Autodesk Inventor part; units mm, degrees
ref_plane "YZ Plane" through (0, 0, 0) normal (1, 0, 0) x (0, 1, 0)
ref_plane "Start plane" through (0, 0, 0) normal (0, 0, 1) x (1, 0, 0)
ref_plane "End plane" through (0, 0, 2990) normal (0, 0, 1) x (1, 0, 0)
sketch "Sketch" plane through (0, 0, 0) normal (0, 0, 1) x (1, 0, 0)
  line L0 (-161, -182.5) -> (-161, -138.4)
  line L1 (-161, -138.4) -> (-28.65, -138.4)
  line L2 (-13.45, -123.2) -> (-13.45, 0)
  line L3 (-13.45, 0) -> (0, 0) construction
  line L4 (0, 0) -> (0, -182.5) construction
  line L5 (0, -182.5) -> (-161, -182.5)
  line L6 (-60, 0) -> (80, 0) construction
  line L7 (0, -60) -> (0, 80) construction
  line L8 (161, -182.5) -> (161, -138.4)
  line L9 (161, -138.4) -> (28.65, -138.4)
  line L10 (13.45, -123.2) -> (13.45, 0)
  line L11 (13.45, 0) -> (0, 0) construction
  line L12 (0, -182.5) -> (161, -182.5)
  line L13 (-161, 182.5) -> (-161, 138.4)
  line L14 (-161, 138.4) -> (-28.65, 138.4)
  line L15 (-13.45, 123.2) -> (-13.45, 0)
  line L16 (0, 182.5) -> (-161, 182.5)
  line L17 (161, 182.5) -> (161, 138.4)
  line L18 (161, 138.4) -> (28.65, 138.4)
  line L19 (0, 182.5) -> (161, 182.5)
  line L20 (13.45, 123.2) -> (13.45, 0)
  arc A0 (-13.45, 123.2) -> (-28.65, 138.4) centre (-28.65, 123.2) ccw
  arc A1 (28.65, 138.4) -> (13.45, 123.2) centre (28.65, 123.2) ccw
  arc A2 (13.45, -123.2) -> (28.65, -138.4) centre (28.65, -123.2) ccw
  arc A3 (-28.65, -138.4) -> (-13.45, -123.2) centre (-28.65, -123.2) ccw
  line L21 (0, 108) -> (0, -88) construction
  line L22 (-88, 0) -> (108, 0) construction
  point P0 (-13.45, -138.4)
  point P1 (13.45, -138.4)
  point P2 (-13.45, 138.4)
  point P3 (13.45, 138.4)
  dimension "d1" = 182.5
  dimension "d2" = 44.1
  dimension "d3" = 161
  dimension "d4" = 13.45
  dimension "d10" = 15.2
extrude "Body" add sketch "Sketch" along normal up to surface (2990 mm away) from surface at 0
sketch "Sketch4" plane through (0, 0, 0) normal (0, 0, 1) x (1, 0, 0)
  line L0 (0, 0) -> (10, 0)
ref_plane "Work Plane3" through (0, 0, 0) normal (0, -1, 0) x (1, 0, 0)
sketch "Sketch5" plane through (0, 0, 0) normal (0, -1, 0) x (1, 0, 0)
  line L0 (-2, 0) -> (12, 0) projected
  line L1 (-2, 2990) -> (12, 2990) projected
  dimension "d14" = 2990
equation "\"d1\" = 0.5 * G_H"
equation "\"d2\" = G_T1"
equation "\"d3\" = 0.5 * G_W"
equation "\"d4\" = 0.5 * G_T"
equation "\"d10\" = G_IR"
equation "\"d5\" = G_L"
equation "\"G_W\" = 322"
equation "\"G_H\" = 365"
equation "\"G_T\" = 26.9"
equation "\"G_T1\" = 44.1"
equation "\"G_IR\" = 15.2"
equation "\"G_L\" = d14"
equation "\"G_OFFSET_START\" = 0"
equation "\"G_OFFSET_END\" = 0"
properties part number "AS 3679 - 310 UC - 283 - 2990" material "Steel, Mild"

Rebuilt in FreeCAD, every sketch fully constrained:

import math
import FreeCAD as App
import Part
import Sketcher

doc = App.newDocument("Part")
body = doc.addObject("PartDesign::Body", "Body")

sketch1 = doc.addObject("Sketcher::SketchObject", "Sketch")
body.addObject(sketch1)
sketch1.AttachmentSupport = (doc.XY_Plane, [""])
sketch1.MapMode = "FlatFace"
sketch1.addGeometry([
    Part.LineSegment(App.Vector(-161, -138.4, 0), App.Vector(-161, -182.5, 0)),
    Part.LineSegment(App.Vector(-161, -182.5, 0), App.Vector(161, -182.5, 0)),
    Part.LineSegment(App.Vector(161, -182.5, 0), App.Vector(161, -138.4, 0)),
    Part.LineSegment(App.Vector(161, -138.4, 0), App.Vector(28.65, -138.4, 0)),
    Part.ArcOfCircle(Part.Circle(App.Vector(28.65, -123.2, 0), App.Vector(0, 0, 1), 15.2), math.radians(180), math.radians(270)),
    Part.LineSegment(App.Vector(13.45, -123.2, 0), App.Vector(13.45, 123.2, 0)),
    Part.ArcOfCircle(Part.Circle(App.Vector(28.65, 123.2, 0), App.Vector(0, 0, 1), 15.2), math.radians(90), math.radians(180)),
    Part.LineSegment(App.Vector(28.65, 138.4, 0), App.Vector(161, 138.4, 0)),
    Part.LineSegment(App.Vector(161, 138.4, 0), App.Vector(161, 182.5, 0)),
    Part.LineSegment(App.Vector(161, 182.5, 0), App.Vector(-161, 182.5, 0)),
    Part.LineSegment(App.Vector(-161, 182.5, 0), App.Vector(-161, 138.4, 0)),
    Part.LineSegment(App.Vector(-161, 138.4, 0), App.Vector(-28.65, 138.4, 0)),
    Part.ArcOfCircle(Part.Circle(App.Vector(-28.65, 123.2, 0), App.Vector(0, 0, 1), 15.2), math.radians(0), math.radians(90)),
    Part.LineSegment(App.Vector(-13.45, 123.2, 0), App.Vector(-13.45, -123.2, 0)),
    Part.ArcOfCircle(Part.Circle(App.Vector(-28.65, -123.2, 0), App.Vector(0, 0, 1), 15.2), math.radians(-90), math.radians(0)),
    Part.LineSegment(App.Vector(-28.65, -138.4, 0), App.Vector(-161, -138.4, 0)),
], False)
sketch1.addConstraint([
    Sketcher.Constraint("Coincident", 0, 2, 1, 1),
    Sketcher.Constraint("Coincident", 1, 2, 2, 1),
    Sketcher.Constraint("Coincident", 2, 2, 3, 1),
    Sketcher.Constraint("Tangent", 3, 2, 4, 2),
    Sketcher.Constraint("Tangent", 4, 1, 5, 1),
    Sketcher.Constraint("Tangent", 5, 2, 6, 2),
    Sketcher.Constraint("Tangent", 6, 1, 7, 1),
    Sketcher.Constraint("Coincident", 7, 2, 8, 1),
    Sketcher.Constraint("Coincident", 8, 2, 9, 1),
    Sketcher.Constraint("Coincident", 9, 2, 10, 1),
    Sketcher.Constraint("Coincident", 10, 2, 11, 1),
    Sketcher.Constraint("Tangent", 11, 2, 12, 2),
    Sketcher.Constraint("Tangent", 12, 1, 13, 1),
    Sketcher.Constraint("Tangent", 13, 2, 14, 2),
    Sketcher.Constraint("Tangent", 14, 1, 15, 1),
    Sketcher.Constraint("Coincident", 15, 2, 0, 1),
    Sketcher.Constraint("Vertical", 0),
    Sketcher.Constraint("Horizontal", 1),
    Sketcher.Constraint("Vertical", 2),
    Sketcher.Constraint("Horizontal", 3),
    Sketcher.Constraint("Vertical", 5),
    Sketcher.Constraint("Horizontal", 7),
    Sketcher.Constraint("Vertical", 8),
    Sketcher.Constraint("Horizontal", 9),
    Sketcher.Constraint("Vertical", 10),
    Sketcher.Constraint("Horizontal", 11),
    Sketcher.Constraint("Vertical", 13),
    Sketcher.Constraint("Horizontal", 15),
    Sketcher.Constraint("Equal", 4, 6),
    Sketcher.Constraint("Equal", 6, 12),
    Sketcher.Constraint("Equal", 12, 14),
    Sketcher.Constraint("Symmetric", 4, 3, 12, 3, -1, 1),
    Sketcher.Constraint("Symmetric", 0, 2, 8, 2, -1, 1),
    Sketcher.Constraint("Symmetric", 7, 2, 10, 2, -2),
    Sketcher.Constraint("Symmetric", 2, 2, 15, 2, -2),
    Sketcher.Constraint("Radius", 4, 15.2),
    Sketcher.Constraint("DistanceY", 0, 2, 0, 1, 44.1),
    Sketcher.Constraint("DistanceX", 0, 2, -1, 1, 161.0),
    Sketcher.Constraint("DistanceY", 0, 2, -1, 1, 182.5),
    Sketcher.Constraint("DistanceX", -1, 1, 4, 1, 13.45),
])
pad1 = doc.addObject("PartDesign::Pad", "Pad")
body.addObject(pad1)
pad1.Profile = sketch1
pad1.Length = 2990

doc.recompute()
